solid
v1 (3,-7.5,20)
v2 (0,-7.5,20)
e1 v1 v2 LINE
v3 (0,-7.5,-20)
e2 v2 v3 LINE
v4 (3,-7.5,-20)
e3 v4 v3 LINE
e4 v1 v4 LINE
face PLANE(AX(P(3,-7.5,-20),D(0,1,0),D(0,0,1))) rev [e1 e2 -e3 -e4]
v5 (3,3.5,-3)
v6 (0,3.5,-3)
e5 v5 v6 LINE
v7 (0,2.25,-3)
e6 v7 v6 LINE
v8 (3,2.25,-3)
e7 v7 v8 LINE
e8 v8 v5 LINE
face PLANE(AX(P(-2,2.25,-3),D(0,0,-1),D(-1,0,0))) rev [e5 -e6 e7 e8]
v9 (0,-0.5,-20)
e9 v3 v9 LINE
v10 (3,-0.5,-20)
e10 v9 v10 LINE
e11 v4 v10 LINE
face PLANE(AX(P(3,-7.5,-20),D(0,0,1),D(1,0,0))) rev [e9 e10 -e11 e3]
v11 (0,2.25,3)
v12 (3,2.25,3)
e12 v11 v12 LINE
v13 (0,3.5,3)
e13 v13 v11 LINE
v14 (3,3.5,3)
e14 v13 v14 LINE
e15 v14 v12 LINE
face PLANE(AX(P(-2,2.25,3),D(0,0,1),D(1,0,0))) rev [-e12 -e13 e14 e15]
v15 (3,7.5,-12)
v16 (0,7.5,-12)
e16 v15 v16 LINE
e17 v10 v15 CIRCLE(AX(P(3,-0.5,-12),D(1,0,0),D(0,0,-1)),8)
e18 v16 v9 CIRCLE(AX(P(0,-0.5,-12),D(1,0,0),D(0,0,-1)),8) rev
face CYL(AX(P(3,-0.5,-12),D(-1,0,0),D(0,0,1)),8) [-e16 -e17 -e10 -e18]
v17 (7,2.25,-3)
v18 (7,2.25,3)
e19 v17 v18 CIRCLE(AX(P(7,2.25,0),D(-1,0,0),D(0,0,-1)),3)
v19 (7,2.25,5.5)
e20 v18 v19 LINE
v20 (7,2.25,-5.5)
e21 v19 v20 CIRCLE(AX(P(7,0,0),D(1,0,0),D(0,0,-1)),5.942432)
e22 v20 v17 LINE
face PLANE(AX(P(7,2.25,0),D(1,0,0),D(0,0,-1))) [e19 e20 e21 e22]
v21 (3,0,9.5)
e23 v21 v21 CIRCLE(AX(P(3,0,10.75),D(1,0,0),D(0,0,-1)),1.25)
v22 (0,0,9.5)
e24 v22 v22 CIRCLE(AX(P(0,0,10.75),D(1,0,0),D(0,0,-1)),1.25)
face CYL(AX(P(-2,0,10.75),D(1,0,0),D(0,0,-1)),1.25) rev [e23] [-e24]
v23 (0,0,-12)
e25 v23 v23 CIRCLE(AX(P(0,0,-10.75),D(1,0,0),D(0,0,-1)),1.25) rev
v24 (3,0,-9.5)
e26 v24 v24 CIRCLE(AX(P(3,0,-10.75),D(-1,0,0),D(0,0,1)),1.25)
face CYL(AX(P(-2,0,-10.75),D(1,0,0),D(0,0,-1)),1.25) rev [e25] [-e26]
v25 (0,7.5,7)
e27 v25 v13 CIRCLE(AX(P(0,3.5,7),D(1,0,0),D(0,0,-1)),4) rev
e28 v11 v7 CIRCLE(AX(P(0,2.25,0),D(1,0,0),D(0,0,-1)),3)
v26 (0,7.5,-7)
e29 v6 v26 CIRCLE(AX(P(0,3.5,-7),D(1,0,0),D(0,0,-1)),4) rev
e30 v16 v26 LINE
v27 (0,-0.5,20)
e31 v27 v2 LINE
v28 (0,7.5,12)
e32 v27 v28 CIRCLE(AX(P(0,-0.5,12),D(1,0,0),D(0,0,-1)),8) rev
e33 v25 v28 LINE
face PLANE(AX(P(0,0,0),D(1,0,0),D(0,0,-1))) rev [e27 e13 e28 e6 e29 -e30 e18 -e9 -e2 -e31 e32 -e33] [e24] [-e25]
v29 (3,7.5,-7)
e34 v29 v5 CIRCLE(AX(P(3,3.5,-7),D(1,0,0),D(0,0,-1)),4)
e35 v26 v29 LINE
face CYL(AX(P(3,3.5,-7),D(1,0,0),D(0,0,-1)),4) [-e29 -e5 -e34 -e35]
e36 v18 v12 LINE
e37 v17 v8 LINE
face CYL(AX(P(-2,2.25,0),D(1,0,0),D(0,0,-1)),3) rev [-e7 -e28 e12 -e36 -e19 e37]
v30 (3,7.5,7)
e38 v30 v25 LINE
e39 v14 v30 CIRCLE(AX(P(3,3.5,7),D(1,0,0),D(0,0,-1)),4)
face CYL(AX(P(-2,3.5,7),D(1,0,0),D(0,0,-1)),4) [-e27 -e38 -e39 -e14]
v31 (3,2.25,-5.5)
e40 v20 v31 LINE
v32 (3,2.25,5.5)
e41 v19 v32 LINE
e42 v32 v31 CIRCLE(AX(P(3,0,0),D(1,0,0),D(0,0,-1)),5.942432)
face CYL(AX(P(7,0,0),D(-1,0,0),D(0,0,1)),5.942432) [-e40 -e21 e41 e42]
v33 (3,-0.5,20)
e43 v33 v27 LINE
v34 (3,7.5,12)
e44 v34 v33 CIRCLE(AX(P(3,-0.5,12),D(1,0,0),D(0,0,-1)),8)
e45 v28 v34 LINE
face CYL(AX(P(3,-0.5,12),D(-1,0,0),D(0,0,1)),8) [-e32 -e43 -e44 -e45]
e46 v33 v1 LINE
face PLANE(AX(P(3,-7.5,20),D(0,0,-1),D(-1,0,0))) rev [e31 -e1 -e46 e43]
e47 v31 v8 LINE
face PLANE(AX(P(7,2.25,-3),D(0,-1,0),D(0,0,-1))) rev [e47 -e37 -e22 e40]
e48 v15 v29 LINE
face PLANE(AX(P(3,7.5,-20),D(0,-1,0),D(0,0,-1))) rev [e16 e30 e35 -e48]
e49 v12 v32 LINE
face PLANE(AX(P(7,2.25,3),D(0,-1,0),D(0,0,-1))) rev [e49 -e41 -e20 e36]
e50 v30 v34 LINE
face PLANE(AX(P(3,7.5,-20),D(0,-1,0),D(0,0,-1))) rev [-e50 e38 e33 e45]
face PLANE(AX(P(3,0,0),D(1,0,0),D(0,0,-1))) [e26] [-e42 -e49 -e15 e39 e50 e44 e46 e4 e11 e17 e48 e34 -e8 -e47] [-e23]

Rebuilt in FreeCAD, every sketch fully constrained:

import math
import FreeCAD as App
import Part
import Sketcher
from FreeCAD import Vector
Q = App.Units.Quantity


def edges_at(feature, points):
    """Names of the edges that pass closest to the given points."""
    edges = feature.Shape.Edges
    near = lambda p: min(range(len(edges)), key=lambda i: edges[i].distToShape(Part.Vertex(*p))[0])
    return sorted({f"Edge{near(p) + 1}" for p in points})

doc = App.newDocument("Part")
params = doc.addObject("Spreadsheet::Sheet", "Params")
for row, (alias, value) in enumerate([
    ("sketch1_width", "15 mm"),
    ("sketch1_height", "40 mm"),
    ("pad1_length", "3 mm"),
    ("sketch2_radius", "3 mm"),
    ("sketch2_diameter", "2.5 mm"),
    ("sketch2_width", "5.25 mm"),
    ("pocket1_length", "5 mm"),
    ("fillet_radius", "8 mm"),
    ("sketch3_radius", "3 mm"),
    ("sketch3_height", "2.5 mm"),
    ("pad2_length", "4 mm"),
    ("fillet2_radius", "4 mm"),
], start=1):
    params.set(f"A{row}", alias)
    params.set(f"B{row}", "=" + value)
    params.setAlias(f"B{row}", alias)

body = doc.addObject("PartDesign::Body", "Body")

# Sketch on YZ plane
sketch1 = body.newObject("Sketcher::SketchObject", "Sketch")
sketch1.AttachmentSupport = (doc.getObject("YZ_Plane"), [""])
sketch1.MapMode = "FlatFace"
sketch1.addGeometry(Part.LineSegment(Vector(8, 20, 0), Vector(-8, 20, 0)), False)
sketch1.addGeometry(Part.LineSegment(Vector(-8, 20, 0), Vector(-8, -20, 0)), False)
sketch1.addGeometry(Part.LineSegment(Vector(-8, -20, 0), Vector(8, -20, 0)), False)
sketch1.addGeometry(Part.LineSegment(Vector(8, -20, 0), Vector(8, 20, 0)), False)
sketch1.addConstraint(Sketcher.Constraint("Coincident", 0, 2, 1, 1))
sketch1.addConstraint(Sketcher.Constraint("Coincident", 1, 2, 2, 1))
sketch1.addConstraint(Sketcher.Constraint("Coincident", 2, 2, 3, 1))
sketch1.addConstraint(Sketcher.Constraint("Coincident", 3, 2, 0, 1))
sketch1.addConstraint(Sketcher.Constraint("Horizontal", 0))
sketch1.addConstraint(Sketcher.Constraint("Vertical", 1))
sketch1.addConstraint(Sketcher.Constraint("Horizontal", 2))
sketch1.addConstraint(Sketcher.Constraint("Vertical", 3))
sketch1.addConstraint(Sketcher.Constraint("Symmetric", 0, 2, 2, 2, -1, 1))
sketch1.addConstraint(Sketcher.Constraint("DistanceX", 0, 2, 0, 1, Q("15 mm")))
sketch1.addConstraint(Sketcher.Constraint("DistanceY", 1, 2, 1, 1, Q("40 mm")))
sketch1.setExpression("Constraints[9]", "Params.sketch1_width")
sketch1.setExpression("Constraints[10]", "Params.sketch1_height")
pad1 = body.newObject("PartDesign::Pad", "Pad")
pad1.Profile = sketch1
pad1.setExpression("Length", "Params.pad1_length")

# Sketch on YZ plane
sketch2 = body.newObject("Sketcher::SketchObject", "Sketch001")
sketch2.AttachmentSupport = (doc.getObject("YZ_Plane"), [""])
sketch2.MapMode = "FlatFace"
sketch2.AttachmentOffset = App.Placement(Vector(0, 0, 3), App.Rotation())
sketch2.addGeometry(Part.Circle(Vector(0, 10.8, 0), Vector(0, 0, 1), 1.2), False)
sketch2.addGeometry(Part.LineSegment(Vector(7.5, 3, 0), Vector(2.2, 3, 0)), False)
sketch2.addGeometry(Part.ArcOfCircle(Part.Circle(Vector(2.2, 0, 0), Vector(0, 0, 1), 3), math.radians(90), math.radians(270)), False)
sketch2.addGeometry(Part.LineSegment(Vector(2.2, -3, 0), Vector(7.5, -3, 0)), False)
sketch2.addGeometry(Part.LineSegment(Vector(7.5, -3, 0), Vector(7.5, 3, 0)), False)
sketch2.addConstraint(Sketcher.Constraint("Tangent", 1, 2, 2, 1))
sketch2.addConstraint(Sketcher.Constraint("Tangent", 2, 2, 3, 1))
sketch2.addConstraint(Sketcher.Constraint("Coincident", 3, 2, 4, 1))
sketch2.addConstraint(Sketcher.Constraint("Coincident", 4, 2, 1, 1))
sketch2.addConstraint(Sketcher.Constraint("Horizontal", 1))
sketch2.addConstraint(Sketcher.Constraint("Horizontal", 3))
sketch2.addConstraint(Sketcher.Constraint("Vertical", 4))
sketch2.addConstraint(Sketcher.Constraint("PointOnObject", 0, 3, -2))
sketch2.addConstraint(Sketcher.Constraint("PointOnObject", 2, 3, -1))
sketch2.addConstraint(Sketcher.Constraint("Radius", 2, Q("3 mm")))
sketch2.addConstraint(Sketcher.Constraint("Diameter", 0, Q("2.5 mm")))
sketch2.addConstraint(Sketcher.Constraint("DistanceX", 1, 2, 1, 1, Q("5.25 mm")))
sketch2.addConstraint(Sketcher.Constraint("DistanceX", -1, 1, 3, 2, Q("7.5 mm")))
sketch2.addConstraint(Sketcher.Constraint("DistanceY", -1, 1, 0, 3, Q("10.75 mm")))
sketch2.setExpression("Constraints[9]", "Params.sketch2_radius")
sketch2.setExpression("Constraints[10]", "Params.sketch2_diameter")
sketch2.setExpression("Constraints[11]", "Params.sketch2_width")
pocket1 = body.newObject("PartDesign::Pocket", "Pocket")
pocket1.Profile = sketch2
pocket1.setExpression("Length", "Params.pocket1_length")
doc.recompute()

mirrored = body.newObject("PartDesign::Mirrored", "Mirrored")
mirrored.Originals = [pocket1]
mirrored.MirrorPlane = (doc.getObject("XY_Plane"), [""])
body.Tip = mirrored
doc.recompute()

fillet = body.newObject("PartDesign::Fillet", "Fillet")
fillet.Base = (mirrored, edges_at(mirrored, [(1.5, 7.5, 20), (1.5, 7.5, -20)]))
fillet.setExpression("Radius", "Params.fillet_radius")

# Sketch on YZ plane
sketch3 = body.newObject("Sketcher::SketchObject", "Sketch002")
sketch3.AttachmentSupport = (doc.getObject("YZ_Plane"), [""])
sketch3.MapMode = "FlatFace"
sketch3.AttachmentOffset = App.Placement(Vector(0, 0, 7), App.Rotation())
sketch3.addGeometry(Part.LineSegment(Vector(2.2, 3, 0), Vector(2.2, 5.5, 0)), False)
sketch3.addGeometry(Part.ArcOfCircle(Part.Circle(Vector(0, 0, 0), Vector(0, 0, 1), 5.9), math.radians(68), math.radians(292)), False)
sketch3.addGeometry(Part.LineSegment(Vector(2.2, -5.5, 0), Vector(2.2, -3, 0)), False)
sketch3.addGeometry(Part.ArcOfCircle(Part.Circle(Vector(2.2, 0, 0), Vector(0, 0, 1), 3), math.radians(90), math.radians(270)), False)
sketch3.addConstraint(Sketcher.Constraint("Coincident", 0, 2, 1, 1))
sketch3.addConstraint(Sketcher.Constraint("Coincident", 1, 2, 2, 1))
sketch3.addConstraint(Sketcher.Constraint("Coincident", 2, 2, 3, 2))
sketch3.addConstraint(Sketcher.Constraint("Coincident", 3, 1, 0, 1))
sketch3.addConstraint(Sketcher.Constraint("Vertical", 0))
sketch3.addConstraint(Sketcher.Constraint("Vertical", 2))
sketch3.addConstraint(Sketcher.Constraint("Coincident", 1, 3, -1, 1))
sketch3.addConstraint(Sketcher.Constraint("Symmetric", 2, 2, 3, 1, -1))
sketch3.addConstraint(Sketcher.Constraint("Vertical", 3, 3, 0, 2))
sketch3.addConstraint(Sketcher.Constraint("Radius", 3, Q("3 mm")))
sketch3.addConstraint(Sketcher.Constraint("DistanceY", 0, 1, 0, 2, Q("2.5 mm")))
sketch3.addConstraint(Sketcher.Constraint("DistanceX", -1, 1, 3, 3, Q("2.25 mm")))
sketch3.setExpression("Constraints[9]", "Params.sketch3_radius")
sketch3.setExpression("Constraints[10]", "Params.sketch3_height")
pad2 = body.newObject("PartDesign::Pad", "Pad001")
pad2.Profile = sketch3
pad2.setExpression("Length", "Params.pad2_length")
pad2.Reversed = True
doc.recompute()

fillet2 = body.newObject("PartDesign::Fillet", "Fillet001")
fillet2.Base = (pad2, edges_at(pad2, [(1.5, 7.5, 3), (1.5, 7.5, -3)]))
fillet2.setExpression("Radius", "Params.fillet2_radius")

doc.recompute()
